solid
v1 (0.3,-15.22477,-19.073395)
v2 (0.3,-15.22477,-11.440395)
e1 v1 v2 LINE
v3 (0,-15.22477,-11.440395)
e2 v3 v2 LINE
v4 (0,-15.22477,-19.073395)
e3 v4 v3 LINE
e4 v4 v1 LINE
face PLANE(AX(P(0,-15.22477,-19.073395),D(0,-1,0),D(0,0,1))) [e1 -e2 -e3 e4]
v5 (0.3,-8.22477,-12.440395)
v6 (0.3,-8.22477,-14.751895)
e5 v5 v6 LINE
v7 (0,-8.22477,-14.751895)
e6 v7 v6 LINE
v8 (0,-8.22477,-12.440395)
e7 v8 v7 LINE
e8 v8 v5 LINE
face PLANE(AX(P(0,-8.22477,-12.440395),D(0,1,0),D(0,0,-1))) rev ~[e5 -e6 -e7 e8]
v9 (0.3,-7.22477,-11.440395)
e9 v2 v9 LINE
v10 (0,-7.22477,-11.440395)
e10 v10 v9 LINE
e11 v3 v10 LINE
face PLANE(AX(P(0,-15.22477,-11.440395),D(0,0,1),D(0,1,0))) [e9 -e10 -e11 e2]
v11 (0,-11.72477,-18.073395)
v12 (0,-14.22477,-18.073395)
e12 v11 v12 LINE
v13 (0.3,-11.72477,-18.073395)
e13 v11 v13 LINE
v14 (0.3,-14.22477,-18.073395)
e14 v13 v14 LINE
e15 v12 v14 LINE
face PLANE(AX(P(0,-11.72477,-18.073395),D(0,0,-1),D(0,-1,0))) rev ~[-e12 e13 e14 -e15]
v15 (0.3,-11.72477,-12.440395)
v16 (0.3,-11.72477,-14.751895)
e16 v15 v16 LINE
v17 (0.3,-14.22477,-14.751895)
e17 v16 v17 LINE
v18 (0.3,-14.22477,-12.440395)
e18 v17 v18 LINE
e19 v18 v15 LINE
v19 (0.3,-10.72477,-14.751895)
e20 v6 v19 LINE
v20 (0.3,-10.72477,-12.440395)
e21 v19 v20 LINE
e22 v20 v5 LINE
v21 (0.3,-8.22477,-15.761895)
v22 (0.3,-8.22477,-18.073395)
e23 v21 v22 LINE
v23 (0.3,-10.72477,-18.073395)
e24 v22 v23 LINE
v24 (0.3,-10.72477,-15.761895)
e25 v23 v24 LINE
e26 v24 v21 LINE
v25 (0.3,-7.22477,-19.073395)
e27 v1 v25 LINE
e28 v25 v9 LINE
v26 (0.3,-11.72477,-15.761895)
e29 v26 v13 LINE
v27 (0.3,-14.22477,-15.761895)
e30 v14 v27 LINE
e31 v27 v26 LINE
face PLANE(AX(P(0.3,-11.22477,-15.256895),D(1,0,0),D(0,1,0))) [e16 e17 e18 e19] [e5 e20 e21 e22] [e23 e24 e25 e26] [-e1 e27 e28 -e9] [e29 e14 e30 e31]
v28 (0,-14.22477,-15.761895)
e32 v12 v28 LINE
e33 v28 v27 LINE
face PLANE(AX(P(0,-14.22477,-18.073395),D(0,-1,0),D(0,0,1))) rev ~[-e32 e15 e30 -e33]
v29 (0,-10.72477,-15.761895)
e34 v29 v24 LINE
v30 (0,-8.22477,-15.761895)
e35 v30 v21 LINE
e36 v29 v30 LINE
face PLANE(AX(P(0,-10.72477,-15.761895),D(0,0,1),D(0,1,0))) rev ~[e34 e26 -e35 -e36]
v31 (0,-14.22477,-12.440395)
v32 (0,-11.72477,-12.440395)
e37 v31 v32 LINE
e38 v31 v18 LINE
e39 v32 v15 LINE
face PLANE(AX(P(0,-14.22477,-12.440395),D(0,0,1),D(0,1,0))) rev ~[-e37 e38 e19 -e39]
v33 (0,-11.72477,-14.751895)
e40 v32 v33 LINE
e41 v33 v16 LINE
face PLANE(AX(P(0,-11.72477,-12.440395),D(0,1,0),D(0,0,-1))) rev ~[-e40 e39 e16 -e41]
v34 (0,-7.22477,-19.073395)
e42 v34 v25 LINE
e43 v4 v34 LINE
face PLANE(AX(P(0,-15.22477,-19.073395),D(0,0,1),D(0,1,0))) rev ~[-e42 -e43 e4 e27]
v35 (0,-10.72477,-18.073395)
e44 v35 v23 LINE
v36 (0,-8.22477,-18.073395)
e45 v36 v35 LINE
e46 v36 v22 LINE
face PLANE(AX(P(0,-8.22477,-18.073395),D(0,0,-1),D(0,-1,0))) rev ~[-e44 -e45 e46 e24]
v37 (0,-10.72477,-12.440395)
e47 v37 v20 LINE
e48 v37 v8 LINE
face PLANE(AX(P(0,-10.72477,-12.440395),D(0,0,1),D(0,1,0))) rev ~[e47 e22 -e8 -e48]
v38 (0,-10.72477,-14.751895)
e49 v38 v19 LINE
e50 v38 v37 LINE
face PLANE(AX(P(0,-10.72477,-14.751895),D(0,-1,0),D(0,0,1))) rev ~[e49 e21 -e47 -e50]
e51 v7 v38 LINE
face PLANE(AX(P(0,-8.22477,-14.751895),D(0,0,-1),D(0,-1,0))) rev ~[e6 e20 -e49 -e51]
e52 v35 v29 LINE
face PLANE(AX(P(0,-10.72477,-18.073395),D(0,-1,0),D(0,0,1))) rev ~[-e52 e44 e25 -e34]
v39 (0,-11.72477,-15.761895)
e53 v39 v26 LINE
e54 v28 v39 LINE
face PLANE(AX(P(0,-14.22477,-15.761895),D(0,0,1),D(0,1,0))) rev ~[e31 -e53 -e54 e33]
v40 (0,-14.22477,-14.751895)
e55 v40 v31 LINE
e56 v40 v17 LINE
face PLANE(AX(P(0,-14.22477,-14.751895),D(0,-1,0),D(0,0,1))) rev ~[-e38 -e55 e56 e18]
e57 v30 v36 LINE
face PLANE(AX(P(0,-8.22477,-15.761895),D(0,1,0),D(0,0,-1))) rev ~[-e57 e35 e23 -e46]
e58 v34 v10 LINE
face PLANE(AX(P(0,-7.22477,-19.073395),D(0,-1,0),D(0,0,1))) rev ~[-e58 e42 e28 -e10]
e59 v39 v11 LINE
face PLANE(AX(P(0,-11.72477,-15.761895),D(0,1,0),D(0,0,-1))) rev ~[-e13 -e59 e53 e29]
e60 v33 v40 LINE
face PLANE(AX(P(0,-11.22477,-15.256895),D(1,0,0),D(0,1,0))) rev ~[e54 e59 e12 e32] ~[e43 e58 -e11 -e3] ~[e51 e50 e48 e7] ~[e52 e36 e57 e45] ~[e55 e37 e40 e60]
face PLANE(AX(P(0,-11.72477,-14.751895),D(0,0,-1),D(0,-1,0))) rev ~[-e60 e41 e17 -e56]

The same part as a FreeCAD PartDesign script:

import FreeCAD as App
import Part
import Sketcher
from FreeCAD import Vector

doc = App.newDocument("Part")
params = doc.addObject("Spreadsheet::Sheet", "Params")
for row, (alias, value) in enumerate([
    ("sketch1_width", "8 mm"),
    ("sketch1_width2", "2.5 mm"),
    ("pad1_length", "0.3 mm"),
], start=1):
    params.set(f"A{row}", alias)
    params.set(f"B{row}", "=" + value)
    params.setAlias(f"B{row}", alias)

body = doc.addObject("PartDesign::Body", "Body")

sketch1 = body.newObject("Sketcher::SketchObject", "Sketch")
sketch1.AttachmentSupport = (doc.getObject("YZ_Plane"), [""])
sketch1.MapMode = "FlatFace"
sketch1.addGeometry([
    Part.LineSegment(Vector(-15.22477, -11.440395, 0), Vector(-15.22477, -19.073395, 0)),
    Part.LineSegment(Vector(-15.22477, -19.073395, 0), Vector(-7.22477, -19.073395, 0)),
    Part.LineSegment(Vector(-7.22477, -19.073395, 0), Vector(-7.22477, -11.440395, 0)),
    Part.LineSegment(Vector(-7.22477, -11.440395, 0), Vector(-15.22477, -11.440395, 0)),
    Part.LineSegment(Vector(-14.22477, -18.073395, 0), Vector(-14.22477, -15.761895, 0)),
    Part.LineSegment(Vector(-14.22477, -15.761895, 0), Vector(-11.72477, -15.761895, 0)),
    Part.LineSegment(Vector(-11.72477, -15.761895, 0), Vector(-11.72477, -18.073395, 0)),
    Part.LineSegment(Vector(-11.72477, -18.073395, 0), Vector(-14.22477, -18.073395, 0)),
    Part.LineSegment(Vector(-14.22477, -14.751895, 0), Vector(-14.22477, -12.440395, 0)),
    Part.LineSegment(Vector(-14.22477, -12.440395, 0), Vector(-11.72477, -12.440395, 0)),
    Part.LineSegment(Vector(-11.72477, -12.440395, 0), Vector(-11.72477, -14.751895, 0)),
    Part.LineSegment(Vector(-11.72477, -14.751895, 0), Vector(-14.22477, -14.751895, 0)),
    Part.LineSegment(Vector(-10.72477, -12.440395, 0), Vector(-8.22477, -12.440395, 0)),
    Part.LineSegment(Vector(-8.22477, -12.440395, 0), Vector(-8.22477, -14.751895, 0)),
    Part.LineSegment(Vector(-8.22477, -14.751895, 0), Vector(-10.72477, -14.751895, 0)),
    Part.LineSegment(Vector(-10.72477, -14.751895, 0), Vector(-10.72477, -12.440395, 0)),
    Part.LineSegment(Vector(-8.22477, -15.761895, 0), Vector(-8.22477, -18.073395, 0)),
    Part.LineSegment(Vector(-8.22477, -18.073395, 0), Vector(-10.72477, -18.073395, 0)),
    Part.LineSegment(Vector(-10.72477, -18.073395, 0), Vector(-10.72477, -15.761895, 0)),
    Part.LineSegment(Vector(-10.72477, -15.761895, 0), Vector(-8.22477, -15.761895, 0)),
], False)
sketch1.addConstraint([
    Sketcher.Constraint("Coincident", 0, 2, 1, 1),
    Sketcher.Constraint("Coincident", 1, 2, 2, 1),
    Sketcher.Constraint("Coincident", 2, 2, 3, 1),
    Sketcher.Constraint("Coincident", 3, 2, 0, 1),
    Sketcher.Constraint("Coincident", 4, 2, 5, 1),
    Sketcher.Constraint("Coincident", 5, 2, 6, 1),
    Sketcher.Constraint("Coincident", 6, 2, 7, 1),
    Sketcher.Constraint("Coincident", 7, 2, 4, 1),
    Sketcher.Constraint("Coincident", 8, 2, 9, 1),
    Sketcher.Constraint("Coincident", 9, 2, 10, 1),
    Sketcher.Constraint("Coincident", 10, 2, 11, 1),
    Sketcher.Constraint("Coincident", 11, 2, 8, 1),
    Sketcher.Constraint("Coincident", 12, 2, 13, 1),
    Sketcher.Constraint("Coincident", 13, 2, 14, 1),
    Sketcher.Constraint("Coincident", 14, 2, 15, 1),
    Sketcher.Constraint("Coincident", 15, 2, 12, 1),
    Sketcher.Constraint("Coincident", 16, 2, 17, 1),
    Sketcher.Constraint("Coincident", 17, 2, 18, 1),
    Sketcher.Constraint("Coincident", 18, 2, 19, 1),
    Sketcher.Constraint("Coincident", 19, 2, 16, 1),
    Sketcher.Constraint("Vertical", 0),
    Sketcher.Constraint("Horizontal", 1),
    Sketcher.Constraint("Vertical", 2),
    Sketcher.Constraint("Horizontal", 3),
    Sketcher.Constraint("Vertical", 4),
    Sketcher.Constraint("Horizontal", 5),
    Sketcher.Constraint("Vertical", 6),
    Sketcher.Constraint("Horizontal", 7),
    Sketcher.Constraint("Vertical", 8),
    Sketcher.Constraint("Horizontal", 9),
    Sketcher.Constraint("Vertical", 10),
    Sketcher.Constraint("Horizontal", 11),
    Sketcher.Constraint("Horizontal", 12),
    Sketcher.Constraint("Vertical", 13),
    Sketcher.Constraint("Horizontal", 14),
    Sketcher.Constraint("Vertical", 15),
    Sketcher.Constraint("Vertical", 16),
    Sketcher.Constraint("Horizontal", 17),
    Sketcher.Constraint("Vertical", 18),
    Sketcher.Constraint("Horizontal", 19),
    Sketcher.Constraint("Horizontal", 9, 2, 12, 2),
    Sketcher.Constraint("Horizontal", 11, 2, 13, 2),
    Sketcher.Constraint("Horizontal", 7, 2, 16, 2),
    Sketcher.Constraint("Horizontal", 5, 2, 18, 2),
    Sketcher.Constraint("Vertical", 7, 2, 8, 2),
    Sketcher.Constraint("Vertical", 6, 2, 9, 2),
    Sketcher.Constraint("Vertical", 13, 2, 16, 2),
    Sketcher.Constraint("Vertical", 15, 2, 17, 2),
    Sketcher.Constraint("Equal", 11, 12),
    Sketcher.Constraint("Equal", 6, 8),
    Sketcher.Constraint("DistanceX", 1, 1, 1, 2, 8.0),
    Sketcher.Constraint("DistanceX", 5, 1, 5, 2, 2.5),
    Sketcher.Constraint("DistanceX", 0, 2, 4, 2, 1.0),
    Sketcher.Constraint("DistanceY", 0, 2, 6, 2, 1.0),
    Sketcher.Constraint("DistanceY", 8, 2, 3, 2, 1.0),
    Sketcher.Constraint("DistanceX", 12, 2, 2, 2, 1.0),
    Sketcher.Constraint("DistanceY", 0, 2, 0, 1, 7.633),
    Sketcher.Constraint("DistanceY", 5, 2, 10, 2, 1.01),
    Sketcher.Constraint("DistanceX", 0, 2, -1, 1, 15.22477),
    Sketcher.Constraint("DistanceY", 0, 2, -1, 1, 19.073395),
])
sketch1.setExpression("Constraints[50]", "Params.sketch1_width")
sketch1.setExpression("Constraints[51]", "Params.sketch1_width2")
pad1 = body.newObject("PartDesign::Pad", "Pad")
pad1.Profile = sketch1
pad1.setExpression("Length", "Params.pad1_length")

doc.recompute()
